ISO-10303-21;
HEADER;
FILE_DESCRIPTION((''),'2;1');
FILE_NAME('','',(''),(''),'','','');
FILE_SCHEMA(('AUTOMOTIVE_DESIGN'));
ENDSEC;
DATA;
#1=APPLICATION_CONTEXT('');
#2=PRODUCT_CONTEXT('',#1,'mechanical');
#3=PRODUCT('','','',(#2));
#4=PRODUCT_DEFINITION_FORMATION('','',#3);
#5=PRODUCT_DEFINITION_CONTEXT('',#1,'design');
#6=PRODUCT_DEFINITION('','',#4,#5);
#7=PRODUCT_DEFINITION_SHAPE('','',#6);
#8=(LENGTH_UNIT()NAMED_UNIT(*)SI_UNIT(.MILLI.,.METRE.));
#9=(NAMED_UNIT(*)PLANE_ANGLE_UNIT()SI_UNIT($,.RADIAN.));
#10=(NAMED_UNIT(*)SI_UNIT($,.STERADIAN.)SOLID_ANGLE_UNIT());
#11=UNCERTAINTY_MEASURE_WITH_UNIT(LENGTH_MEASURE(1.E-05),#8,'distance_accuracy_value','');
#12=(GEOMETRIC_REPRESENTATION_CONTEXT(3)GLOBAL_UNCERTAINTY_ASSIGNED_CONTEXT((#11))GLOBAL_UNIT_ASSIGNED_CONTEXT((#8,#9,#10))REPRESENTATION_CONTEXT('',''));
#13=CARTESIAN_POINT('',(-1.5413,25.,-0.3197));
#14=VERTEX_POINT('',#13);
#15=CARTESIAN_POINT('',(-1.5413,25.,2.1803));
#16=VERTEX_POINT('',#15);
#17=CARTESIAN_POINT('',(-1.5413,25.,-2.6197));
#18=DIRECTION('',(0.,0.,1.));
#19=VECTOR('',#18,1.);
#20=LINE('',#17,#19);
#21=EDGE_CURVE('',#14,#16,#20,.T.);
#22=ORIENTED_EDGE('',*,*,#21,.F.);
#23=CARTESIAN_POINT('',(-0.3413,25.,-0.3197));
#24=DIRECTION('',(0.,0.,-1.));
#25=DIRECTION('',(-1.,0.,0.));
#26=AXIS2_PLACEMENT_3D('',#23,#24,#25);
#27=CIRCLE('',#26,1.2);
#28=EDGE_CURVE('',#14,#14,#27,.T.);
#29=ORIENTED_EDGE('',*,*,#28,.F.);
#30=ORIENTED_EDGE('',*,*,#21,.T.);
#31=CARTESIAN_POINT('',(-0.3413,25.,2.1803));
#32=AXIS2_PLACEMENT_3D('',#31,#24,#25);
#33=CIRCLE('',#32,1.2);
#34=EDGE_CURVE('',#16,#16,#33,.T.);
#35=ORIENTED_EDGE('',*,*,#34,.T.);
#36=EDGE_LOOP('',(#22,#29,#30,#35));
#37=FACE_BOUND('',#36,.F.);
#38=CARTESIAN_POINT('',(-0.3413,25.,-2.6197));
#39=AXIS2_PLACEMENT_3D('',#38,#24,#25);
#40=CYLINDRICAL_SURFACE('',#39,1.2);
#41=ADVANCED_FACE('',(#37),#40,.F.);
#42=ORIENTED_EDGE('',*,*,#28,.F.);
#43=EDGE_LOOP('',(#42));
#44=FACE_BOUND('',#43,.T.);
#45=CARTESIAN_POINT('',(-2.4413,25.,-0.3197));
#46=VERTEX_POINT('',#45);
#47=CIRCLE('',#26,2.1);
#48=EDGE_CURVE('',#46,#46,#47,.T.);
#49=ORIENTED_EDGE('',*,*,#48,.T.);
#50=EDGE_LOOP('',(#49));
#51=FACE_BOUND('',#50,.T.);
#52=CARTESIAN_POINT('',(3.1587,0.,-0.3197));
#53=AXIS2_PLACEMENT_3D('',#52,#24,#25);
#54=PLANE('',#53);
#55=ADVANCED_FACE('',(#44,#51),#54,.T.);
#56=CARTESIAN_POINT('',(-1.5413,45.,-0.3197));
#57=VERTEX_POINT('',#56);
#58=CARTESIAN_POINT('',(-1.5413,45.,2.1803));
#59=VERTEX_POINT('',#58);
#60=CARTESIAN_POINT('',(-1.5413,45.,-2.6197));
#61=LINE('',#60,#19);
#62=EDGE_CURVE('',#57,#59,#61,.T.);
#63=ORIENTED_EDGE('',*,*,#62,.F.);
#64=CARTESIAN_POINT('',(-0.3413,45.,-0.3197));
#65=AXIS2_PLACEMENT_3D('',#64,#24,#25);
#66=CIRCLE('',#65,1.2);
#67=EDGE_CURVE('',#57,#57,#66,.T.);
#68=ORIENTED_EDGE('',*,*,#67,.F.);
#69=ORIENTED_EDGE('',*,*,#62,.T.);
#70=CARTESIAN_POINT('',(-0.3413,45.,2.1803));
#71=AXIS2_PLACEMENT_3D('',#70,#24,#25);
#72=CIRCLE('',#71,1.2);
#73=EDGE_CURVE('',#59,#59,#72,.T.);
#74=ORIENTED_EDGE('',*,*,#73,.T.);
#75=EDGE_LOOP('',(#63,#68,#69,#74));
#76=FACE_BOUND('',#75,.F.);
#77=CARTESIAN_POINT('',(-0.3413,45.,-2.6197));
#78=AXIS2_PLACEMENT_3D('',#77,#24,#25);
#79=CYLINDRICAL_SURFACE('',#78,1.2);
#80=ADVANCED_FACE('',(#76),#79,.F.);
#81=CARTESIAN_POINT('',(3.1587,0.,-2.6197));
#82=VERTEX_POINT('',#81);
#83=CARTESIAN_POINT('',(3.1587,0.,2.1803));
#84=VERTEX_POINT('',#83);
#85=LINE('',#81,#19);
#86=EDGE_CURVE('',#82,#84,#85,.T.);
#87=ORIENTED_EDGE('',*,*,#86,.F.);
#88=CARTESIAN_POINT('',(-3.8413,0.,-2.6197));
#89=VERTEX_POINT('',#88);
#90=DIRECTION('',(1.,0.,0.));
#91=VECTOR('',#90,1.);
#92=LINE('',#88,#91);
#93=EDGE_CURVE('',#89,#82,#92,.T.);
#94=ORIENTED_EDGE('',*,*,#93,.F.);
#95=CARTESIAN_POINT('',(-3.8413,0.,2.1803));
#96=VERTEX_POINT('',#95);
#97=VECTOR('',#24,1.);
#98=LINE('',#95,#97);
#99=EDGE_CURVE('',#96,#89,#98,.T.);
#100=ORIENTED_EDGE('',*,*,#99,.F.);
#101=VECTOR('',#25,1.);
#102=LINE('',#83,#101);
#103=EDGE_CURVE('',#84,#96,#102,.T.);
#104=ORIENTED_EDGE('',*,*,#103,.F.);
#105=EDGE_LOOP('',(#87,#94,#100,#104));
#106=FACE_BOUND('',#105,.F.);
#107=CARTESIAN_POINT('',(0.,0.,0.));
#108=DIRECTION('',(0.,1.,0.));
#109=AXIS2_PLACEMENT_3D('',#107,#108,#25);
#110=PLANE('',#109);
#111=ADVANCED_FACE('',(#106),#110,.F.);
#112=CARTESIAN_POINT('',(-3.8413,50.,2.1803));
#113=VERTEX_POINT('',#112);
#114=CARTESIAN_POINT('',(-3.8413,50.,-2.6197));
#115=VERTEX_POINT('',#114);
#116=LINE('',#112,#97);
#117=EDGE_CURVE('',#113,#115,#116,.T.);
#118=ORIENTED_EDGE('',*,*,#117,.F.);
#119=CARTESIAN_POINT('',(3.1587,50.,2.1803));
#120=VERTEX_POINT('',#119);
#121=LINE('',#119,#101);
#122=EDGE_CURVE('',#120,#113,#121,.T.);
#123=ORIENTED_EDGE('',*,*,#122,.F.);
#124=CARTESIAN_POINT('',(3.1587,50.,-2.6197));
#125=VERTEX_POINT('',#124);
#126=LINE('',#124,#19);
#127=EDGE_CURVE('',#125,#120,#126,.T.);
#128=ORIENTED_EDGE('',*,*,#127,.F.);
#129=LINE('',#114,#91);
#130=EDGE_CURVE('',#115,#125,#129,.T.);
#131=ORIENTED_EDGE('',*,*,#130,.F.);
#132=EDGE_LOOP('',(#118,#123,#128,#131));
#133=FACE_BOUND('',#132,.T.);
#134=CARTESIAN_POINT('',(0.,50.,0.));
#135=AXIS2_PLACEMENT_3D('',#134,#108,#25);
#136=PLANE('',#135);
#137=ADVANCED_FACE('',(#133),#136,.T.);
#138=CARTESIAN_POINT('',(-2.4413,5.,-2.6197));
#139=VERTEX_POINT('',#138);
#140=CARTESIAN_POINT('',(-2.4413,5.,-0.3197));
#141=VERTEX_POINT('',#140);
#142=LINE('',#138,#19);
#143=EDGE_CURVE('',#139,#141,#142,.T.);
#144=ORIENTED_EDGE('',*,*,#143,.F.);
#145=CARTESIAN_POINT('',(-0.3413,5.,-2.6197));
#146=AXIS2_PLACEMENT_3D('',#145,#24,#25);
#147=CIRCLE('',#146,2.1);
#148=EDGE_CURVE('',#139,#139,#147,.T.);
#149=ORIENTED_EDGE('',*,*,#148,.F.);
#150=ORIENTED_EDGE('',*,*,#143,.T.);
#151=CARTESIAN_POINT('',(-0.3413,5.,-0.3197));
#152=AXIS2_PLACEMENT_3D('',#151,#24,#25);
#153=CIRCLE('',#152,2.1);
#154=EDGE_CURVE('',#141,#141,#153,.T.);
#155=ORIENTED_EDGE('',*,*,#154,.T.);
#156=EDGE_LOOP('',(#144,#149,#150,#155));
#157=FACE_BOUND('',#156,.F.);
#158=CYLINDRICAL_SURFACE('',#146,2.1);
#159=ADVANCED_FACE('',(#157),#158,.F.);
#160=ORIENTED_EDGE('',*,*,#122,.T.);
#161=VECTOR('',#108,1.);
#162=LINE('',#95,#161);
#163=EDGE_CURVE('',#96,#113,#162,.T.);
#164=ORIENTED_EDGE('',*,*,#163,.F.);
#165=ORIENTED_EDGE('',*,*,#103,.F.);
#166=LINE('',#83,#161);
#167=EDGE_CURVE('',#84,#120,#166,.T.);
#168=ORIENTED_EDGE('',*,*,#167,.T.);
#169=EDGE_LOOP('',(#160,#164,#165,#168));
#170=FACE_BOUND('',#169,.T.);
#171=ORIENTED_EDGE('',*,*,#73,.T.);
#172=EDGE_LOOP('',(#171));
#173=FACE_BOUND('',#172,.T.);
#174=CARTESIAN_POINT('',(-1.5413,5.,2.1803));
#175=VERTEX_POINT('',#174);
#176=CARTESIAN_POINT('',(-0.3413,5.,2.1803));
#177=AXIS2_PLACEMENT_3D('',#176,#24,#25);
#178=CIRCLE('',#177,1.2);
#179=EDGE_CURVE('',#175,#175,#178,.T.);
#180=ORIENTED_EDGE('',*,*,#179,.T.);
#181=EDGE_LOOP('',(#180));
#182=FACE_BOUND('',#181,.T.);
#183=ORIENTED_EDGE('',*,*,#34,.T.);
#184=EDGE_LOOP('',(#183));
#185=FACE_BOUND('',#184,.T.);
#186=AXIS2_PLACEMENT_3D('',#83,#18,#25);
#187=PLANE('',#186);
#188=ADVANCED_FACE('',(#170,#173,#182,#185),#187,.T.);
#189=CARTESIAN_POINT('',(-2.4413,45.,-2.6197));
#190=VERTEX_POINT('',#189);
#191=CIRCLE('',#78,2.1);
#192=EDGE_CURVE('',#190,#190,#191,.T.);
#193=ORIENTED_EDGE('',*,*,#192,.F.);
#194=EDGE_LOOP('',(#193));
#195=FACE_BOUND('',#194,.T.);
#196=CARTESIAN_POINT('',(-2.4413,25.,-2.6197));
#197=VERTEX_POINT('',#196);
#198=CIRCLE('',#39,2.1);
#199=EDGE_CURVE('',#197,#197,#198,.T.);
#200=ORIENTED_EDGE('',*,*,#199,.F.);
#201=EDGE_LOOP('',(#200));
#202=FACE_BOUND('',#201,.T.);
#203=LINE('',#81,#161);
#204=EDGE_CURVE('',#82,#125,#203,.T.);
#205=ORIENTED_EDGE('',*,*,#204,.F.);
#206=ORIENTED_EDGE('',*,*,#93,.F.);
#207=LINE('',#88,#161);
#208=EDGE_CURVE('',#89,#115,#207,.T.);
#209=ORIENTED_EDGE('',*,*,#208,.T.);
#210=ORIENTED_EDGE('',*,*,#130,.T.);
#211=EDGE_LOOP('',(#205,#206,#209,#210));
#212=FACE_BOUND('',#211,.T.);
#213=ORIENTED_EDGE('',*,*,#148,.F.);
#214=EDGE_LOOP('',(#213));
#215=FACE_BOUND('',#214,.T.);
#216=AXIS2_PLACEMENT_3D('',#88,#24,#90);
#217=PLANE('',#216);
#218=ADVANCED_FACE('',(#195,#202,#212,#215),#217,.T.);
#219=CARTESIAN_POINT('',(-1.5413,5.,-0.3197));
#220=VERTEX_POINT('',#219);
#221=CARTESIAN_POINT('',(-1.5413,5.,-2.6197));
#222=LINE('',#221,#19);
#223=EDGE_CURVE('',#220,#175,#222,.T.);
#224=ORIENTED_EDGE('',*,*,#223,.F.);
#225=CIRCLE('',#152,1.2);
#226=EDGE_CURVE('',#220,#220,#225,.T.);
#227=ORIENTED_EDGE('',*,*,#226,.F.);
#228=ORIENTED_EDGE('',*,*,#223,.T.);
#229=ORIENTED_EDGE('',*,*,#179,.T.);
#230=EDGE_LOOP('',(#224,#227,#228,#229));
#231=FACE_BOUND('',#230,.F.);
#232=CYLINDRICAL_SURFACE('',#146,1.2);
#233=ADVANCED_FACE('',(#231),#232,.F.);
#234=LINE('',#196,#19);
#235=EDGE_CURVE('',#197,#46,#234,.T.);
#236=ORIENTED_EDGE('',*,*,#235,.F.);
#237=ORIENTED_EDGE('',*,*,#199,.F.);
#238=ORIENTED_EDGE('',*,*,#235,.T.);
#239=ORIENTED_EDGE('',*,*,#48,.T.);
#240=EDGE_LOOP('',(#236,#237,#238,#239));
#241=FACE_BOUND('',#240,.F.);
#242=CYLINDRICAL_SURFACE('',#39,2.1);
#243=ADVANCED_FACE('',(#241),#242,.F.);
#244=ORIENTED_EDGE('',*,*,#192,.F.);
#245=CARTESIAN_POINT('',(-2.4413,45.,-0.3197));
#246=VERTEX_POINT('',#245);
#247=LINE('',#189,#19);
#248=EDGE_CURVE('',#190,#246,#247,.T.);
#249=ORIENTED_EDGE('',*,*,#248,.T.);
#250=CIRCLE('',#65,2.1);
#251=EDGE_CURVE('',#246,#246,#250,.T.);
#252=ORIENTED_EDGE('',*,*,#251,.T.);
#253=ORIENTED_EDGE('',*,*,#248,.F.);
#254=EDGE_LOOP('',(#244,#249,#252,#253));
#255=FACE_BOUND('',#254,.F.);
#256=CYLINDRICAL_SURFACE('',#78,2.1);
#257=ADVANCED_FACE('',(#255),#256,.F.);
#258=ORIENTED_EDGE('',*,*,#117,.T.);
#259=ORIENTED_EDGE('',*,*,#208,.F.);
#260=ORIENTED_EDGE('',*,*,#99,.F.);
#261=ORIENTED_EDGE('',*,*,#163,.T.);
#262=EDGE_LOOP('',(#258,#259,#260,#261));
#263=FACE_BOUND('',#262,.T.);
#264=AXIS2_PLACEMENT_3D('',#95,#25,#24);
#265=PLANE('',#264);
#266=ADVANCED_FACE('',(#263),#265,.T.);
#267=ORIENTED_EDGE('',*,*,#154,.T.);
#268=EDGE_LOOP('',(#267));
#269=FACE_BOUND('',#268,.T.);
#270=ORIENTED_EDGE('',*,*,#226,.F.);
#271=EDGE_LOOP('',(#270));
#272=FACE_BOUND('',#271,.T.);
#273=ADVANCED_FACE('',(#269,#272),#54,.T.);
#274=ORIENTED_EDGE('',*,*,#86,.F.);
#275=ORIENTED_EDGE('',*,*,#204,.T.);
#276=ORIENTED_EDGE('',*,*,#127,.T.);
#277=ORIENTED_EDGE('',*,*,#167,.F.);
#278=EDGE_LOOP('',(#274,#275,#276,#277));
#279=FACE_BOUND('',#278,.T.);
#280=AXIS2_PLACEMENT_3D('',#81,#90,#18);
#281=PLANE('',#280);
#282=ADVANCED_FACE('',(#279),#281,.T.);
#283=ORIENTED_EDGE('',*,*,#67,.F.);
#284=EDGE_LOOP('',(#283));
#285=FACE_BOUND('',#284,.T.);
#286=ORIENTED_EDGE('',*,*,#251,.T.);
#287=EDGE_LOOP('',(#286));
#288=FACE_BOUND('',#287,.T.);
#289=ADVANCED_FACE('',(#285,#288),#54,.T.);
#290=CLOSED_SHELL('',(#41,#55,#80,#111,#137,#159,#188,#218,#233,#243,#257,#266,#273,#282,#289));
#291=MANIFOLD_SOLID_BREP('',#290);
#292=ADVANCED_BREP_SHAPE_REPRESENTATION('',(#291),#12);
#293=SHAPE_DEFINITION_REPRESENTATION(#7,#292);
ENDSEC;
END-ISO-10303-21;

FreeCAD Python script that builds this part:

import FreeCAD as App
import Part
import Sketcher

doc = App.newDocument("Part")
body = doc.addObject("PartDesign::Body", "Body")

sketch1 = body.newObject("Sketcher::SketchObject", "Sketch")
sketch1.AttachmentSupport = (doc.getObject("XZ_Plane"), [""])
sketch1.MapMode = "FlatFace"
sketch1.addGeometry([
    Part.LineSegment(App.Vector(3.2, -2.6, 0), App.Vector(-3.8, -2.6, 0)),
    Part.LineSegment(App.Vector(-3.8, -2.6, 0), App.Vector(-3.8, 2.2, 0)),
    Part.LineSegment(App.Vector(-3.8, 2.2, 0), App.Vector(3.2, 2.2, 0)),
    Part.LineSegment(App.Vector(3.2, 2.2, 0), App.Vector(3.2, -2.6, 0)),
], False)
sketch1.addConstraint([
    Sketcher.Constraint("Coincident", 0, 2, 1, 1),
    Sketcher.Constraint("Coincident", 1, 2, 2, 1),
    Sketcher.Constraint("Coincident", 2, 2, 3, 1),
    Sketcher.Constraint("Coincident", 3, 2, 0, 1),
    Sketcher.Constraint("Horizontal", 0),
    Sketcher.Constraint("Vertical", 1),
    Sketcher.Constraint("Horizontal", 2),
    Sketcher.Constraint("Vertical", 3),
    Sketcher.Constraint("DistanceX", 0, 2, 0, 1, 7.0),
    Sketcher.Constraint("DistanceY", 1, 1, 1, 2, 4.8),
    Sketcher.Constraint("DistanceX", 0, 2, -1, 1, 3.8413),
    Sketcher.Constraint("DistanceY", 0, 2, -1, 1, 2.6197),
])
pad1 = body.newObject("PartDesign::Pad", "Pad")
pad1.Profile = sketch1
pad1.Length = 50
pad1.Reversed = True

sketch2 = body.newObject("Sketcher::SketchObject", "Sketch001")
sketch2.AttachmentSupport = (doc.getObject("XY_Plane"), [""])
sketch2.MapMode = "FlatFace"
sketch2.AttachmentOffset = App.Placement(App.Vector(0, 0, -2.6197), App.Rotation())
sketch2.addGeometry([
    Part.Circle(App.Vector(-0.3, 5, 0), App.Vector(0, 0, 1), 1.2),
    Part.Circle(App.Vector(-0.3, 25, 0), App.Vector(0, 0, 1), 1.2),
    Part.Circle(App.Vector(-0.3, 45, 0), App.Vector(0, 0, 1), 1.2),
], False)
sketch2.addConstraint([
    Sketcher.Constraint("Equal", 0, 1),
    Sketcher.Constraint("Equal", 1, 2),
    Sketcher.Constraint("Vertical", 0, 3, 1, 3),
    Sketcher.Constraint("Vertical", 1, 3, 2, 3),
    Sketcher.Constraint("Diameter", 0, 2.4),
    Sketcher.Constraint("DistanceY", -1, 1, 0, 3, 5.0),
    Sketcher.Constraint("DistanceY", 0, 3, 1, 3, 20.0),
    Sketcher.Constraint("DistanceY", 1, 3, 2, 3, 20.0),
    Sketcher.Constraint("DistanceX", 0, 3, -1, 1, 0.3413),
])
pocket1 = body.newObject("PartDesign::Pocket", "Pocket")
pocket1.Profile = sketch2
pocket1.Type = "ThroughAll"
pocket1.Reversed = True

sketch3 = body.newObject("Sketcher::SketchObject", "Sketch002")
sketch3.AttachmentSupport = (doc.getObject("XY_Plane"), [""])
sketch3.MapMode = "FlatFace"
sketch3.AttachmentOffset = App.Placement(App.Vector(0, 0, -2.6197), App.Rotation())
sketch3.addGeometry([
    Part.Circle(App.Vector(-0.3, 45, 0), App.Vector(0, 0, 1), 2.1),
    Part.Circle(App.Vector(-0.3, 25, 0), App.Vector(0, 0, 1), 2.1),
    Part.Circle(App.Vector(-0.3, 5, 0), App.Vector(0, 0, 1), 2.1),
], False)
sketch3.addConstraint([
    Sketcher.Constraint("Equal", 0, 1),
    Sketcher.Constraint("Equal", 1, 2),
    Sketcher.Constraint("Vertical", 0, 3, 1, 3),
    Sketcher.Constraint("Vertical", 1, 3, 2, 3),
    Sketcher.Constraint("Diameter", 0, 4.2),
    Sketcher.Constraint("DistanceY", -1, 1, 0, 3, 45.0),
    Sketcher.Constraint("DistanceY", -1, 1, 1, 3, 25.0),
    Sketcher.Constraint("DistanceY", -1, 1, 2, 3, 5.0),
    Sketcher.Constraint("DistanceX", 0, 3, -1, 1, 0.3413),
])
pocket2 = body.newObject("PartDesign::Pocket", "Pocket001")
pocket2.Profile = sketch3
pocket2.Length = 2.3
pocket2.Reversed = True

doc.recompute()
